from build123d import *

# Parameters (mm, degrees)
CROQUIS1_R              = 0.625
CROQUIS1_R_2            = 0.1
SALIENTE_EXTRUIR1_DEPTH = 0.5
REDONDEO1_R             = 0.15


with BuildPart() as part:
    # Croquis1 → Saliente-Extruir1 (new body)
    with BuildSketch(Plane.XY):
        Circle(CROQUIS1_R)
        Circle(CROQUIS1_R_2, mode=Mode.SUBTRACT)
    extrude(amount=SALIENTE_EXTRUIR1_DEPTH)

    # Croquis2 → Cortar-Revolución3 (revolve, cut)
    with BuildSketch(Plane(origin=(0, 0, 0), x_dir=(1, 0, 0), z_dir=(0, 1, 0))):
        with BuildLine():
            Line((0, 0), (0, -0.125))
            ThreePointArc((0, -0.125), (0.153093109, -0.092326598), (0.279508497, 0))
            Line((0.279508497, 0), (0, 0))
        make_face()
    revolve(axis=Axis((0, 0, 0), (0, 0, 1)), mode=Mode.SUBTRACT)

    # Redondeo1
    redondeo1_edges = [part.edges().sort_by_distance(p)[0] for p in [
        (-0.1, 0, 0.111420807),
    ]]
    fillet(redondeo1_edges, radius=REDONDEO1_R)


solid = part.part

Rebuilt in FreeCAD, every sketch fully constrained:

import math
import FreeCAD as App
import Part
import Sketcher
Q = App.Units.Quantity


def edges_at(feature, points):
    """Names of the edges that pass closest to the given points."""
    edges = feature.Shape.Edges
    near = lambda p: min(range(len(edges)), key=lambda i: edges[i].distToShape(Part.Vertex(*p))[0])
    return sorted({f"Edge{near(p) + 1}" for p in points})

doc = App.newDocument("Part")
params = doc.addObject("Spreadsheet::Sheet", "Params")
for row, (alias, value) in enumerate([
    ("sketch1_diameter", "0.2 mm"),
    ("sketch1_diameter2", "1.25 mm"),
    ("pad1_length", "0.5 mm"),
    ("groove_angle", "360 deg"),
    ("fillet_radius", "0.15 mm"),
], start=1):
    params.set(f"A{row}", alias)
    params.set(f"B{row}", "=" + value)
    params.setAlias(f"B{row}", alias)

body = doc.addObject("PartDesign::Body", "Body")

# Sketch on XY plane
sketch1 = body.newObject("Sketcher::SketchObject", "Sketch")
sketch1.AttachmentSupport = (doc.getObject("XY_Plane"), [""])
sketch1.MapMode = "FlatFace"
sketch1.addGeometry([
    Part.Circle(App.Vector(0, 0, 0), App.Vector(0, 0, 1), 0.625),
    Part.Circle(App.Vector(0, 0, 0), App.Vector(0, 0, 1), 0.1),
], False)
sketch1.addConstraint([
    Sketcher.Constraint("Coincident", 0, 3, -1, 1),
    Sketcher.Constraint("Coincident", 1, 3, -1, 1),
    Sketcher.Constraint("Diameter", 1, Q("0.2 mm")),
    Sketcher.Constraint("Diameter", 0, Q("1.25 mm")),
])
sketch1.setExpression("Constraints[2]", "Params.sketch1_diameter")
sketch1.setExpression("Constraints[3]", "Params.sketch1_diameter2")
pad1 = body.newObject("PartDesign::Pad", "Pad")
pad1.Profile = sketch1
pad1.setExpression("Length", "Params.pad1_length")

# Sketch on XZ plane
sketch2 = body.newObject("Sketcher::SketchObject", "Sketch001")
sketch2.AttachmentSupport = (doc.getObject("XZ_Plane"), [""])
sketch2.MapMode = "FlatFace"
sketch2.addGeometry([
    Part.LineSegment(App.Vector(0, 0, 0), App.Vector(0, 0.125, 0)),
    Part.ArcOfCircle(Part.Circle(App.Vector(0, -0.25, 0), App.Vector(0, 0, 1), 0.375), math.radians(41.810315), math.radians(90)),
    Part.LineSegment(App.Vector(0.279508, 0, 0), App.Vector(0, 0, 0)),
], False)
sketch2.addConstraint([
    Sketcher.Constraint("Coincident", 0, 2, 1, 2),
    Sketcher.Constraint("Coincident", 1, 1, 2, 1),
    Sketcher.Constraint("Coincident", 2, 2, 0, 1),
    Sketcher.Constraint("Vertical", 0),
    Sketcher.Constraint("Horizontal", 2),
    Sketcher.Constraint("Coincident", 2, 2, -1, 1),
    Sketcher.Constraint("PointOnObject", 1, 3, -2),
    Sketcher.Constraint("Radius", 1, Q("0.375 mm")),
    Sketcher.Constraint("DistanceY", 0, 1, 0, 2, Q("0.125 mm")),
])
groove = body.newObject("PartDesign::Groove", "Groove")
groove.Profile = sketch2
groove.ReferenceAxis = (sketch2, ["V_Axis"])
groove.setExpression("Angle", "Params.groove_angle")
doc.recompute()

fillet = body.newObject("PartDesign::Fillet", "Fillet")
fillet.Base = (groove, edges_at(groove, [(-0.1, 0, 0.111)]))
fillet.setExpression("Radius", "Params.fillet_radius")

doc.recompute()
